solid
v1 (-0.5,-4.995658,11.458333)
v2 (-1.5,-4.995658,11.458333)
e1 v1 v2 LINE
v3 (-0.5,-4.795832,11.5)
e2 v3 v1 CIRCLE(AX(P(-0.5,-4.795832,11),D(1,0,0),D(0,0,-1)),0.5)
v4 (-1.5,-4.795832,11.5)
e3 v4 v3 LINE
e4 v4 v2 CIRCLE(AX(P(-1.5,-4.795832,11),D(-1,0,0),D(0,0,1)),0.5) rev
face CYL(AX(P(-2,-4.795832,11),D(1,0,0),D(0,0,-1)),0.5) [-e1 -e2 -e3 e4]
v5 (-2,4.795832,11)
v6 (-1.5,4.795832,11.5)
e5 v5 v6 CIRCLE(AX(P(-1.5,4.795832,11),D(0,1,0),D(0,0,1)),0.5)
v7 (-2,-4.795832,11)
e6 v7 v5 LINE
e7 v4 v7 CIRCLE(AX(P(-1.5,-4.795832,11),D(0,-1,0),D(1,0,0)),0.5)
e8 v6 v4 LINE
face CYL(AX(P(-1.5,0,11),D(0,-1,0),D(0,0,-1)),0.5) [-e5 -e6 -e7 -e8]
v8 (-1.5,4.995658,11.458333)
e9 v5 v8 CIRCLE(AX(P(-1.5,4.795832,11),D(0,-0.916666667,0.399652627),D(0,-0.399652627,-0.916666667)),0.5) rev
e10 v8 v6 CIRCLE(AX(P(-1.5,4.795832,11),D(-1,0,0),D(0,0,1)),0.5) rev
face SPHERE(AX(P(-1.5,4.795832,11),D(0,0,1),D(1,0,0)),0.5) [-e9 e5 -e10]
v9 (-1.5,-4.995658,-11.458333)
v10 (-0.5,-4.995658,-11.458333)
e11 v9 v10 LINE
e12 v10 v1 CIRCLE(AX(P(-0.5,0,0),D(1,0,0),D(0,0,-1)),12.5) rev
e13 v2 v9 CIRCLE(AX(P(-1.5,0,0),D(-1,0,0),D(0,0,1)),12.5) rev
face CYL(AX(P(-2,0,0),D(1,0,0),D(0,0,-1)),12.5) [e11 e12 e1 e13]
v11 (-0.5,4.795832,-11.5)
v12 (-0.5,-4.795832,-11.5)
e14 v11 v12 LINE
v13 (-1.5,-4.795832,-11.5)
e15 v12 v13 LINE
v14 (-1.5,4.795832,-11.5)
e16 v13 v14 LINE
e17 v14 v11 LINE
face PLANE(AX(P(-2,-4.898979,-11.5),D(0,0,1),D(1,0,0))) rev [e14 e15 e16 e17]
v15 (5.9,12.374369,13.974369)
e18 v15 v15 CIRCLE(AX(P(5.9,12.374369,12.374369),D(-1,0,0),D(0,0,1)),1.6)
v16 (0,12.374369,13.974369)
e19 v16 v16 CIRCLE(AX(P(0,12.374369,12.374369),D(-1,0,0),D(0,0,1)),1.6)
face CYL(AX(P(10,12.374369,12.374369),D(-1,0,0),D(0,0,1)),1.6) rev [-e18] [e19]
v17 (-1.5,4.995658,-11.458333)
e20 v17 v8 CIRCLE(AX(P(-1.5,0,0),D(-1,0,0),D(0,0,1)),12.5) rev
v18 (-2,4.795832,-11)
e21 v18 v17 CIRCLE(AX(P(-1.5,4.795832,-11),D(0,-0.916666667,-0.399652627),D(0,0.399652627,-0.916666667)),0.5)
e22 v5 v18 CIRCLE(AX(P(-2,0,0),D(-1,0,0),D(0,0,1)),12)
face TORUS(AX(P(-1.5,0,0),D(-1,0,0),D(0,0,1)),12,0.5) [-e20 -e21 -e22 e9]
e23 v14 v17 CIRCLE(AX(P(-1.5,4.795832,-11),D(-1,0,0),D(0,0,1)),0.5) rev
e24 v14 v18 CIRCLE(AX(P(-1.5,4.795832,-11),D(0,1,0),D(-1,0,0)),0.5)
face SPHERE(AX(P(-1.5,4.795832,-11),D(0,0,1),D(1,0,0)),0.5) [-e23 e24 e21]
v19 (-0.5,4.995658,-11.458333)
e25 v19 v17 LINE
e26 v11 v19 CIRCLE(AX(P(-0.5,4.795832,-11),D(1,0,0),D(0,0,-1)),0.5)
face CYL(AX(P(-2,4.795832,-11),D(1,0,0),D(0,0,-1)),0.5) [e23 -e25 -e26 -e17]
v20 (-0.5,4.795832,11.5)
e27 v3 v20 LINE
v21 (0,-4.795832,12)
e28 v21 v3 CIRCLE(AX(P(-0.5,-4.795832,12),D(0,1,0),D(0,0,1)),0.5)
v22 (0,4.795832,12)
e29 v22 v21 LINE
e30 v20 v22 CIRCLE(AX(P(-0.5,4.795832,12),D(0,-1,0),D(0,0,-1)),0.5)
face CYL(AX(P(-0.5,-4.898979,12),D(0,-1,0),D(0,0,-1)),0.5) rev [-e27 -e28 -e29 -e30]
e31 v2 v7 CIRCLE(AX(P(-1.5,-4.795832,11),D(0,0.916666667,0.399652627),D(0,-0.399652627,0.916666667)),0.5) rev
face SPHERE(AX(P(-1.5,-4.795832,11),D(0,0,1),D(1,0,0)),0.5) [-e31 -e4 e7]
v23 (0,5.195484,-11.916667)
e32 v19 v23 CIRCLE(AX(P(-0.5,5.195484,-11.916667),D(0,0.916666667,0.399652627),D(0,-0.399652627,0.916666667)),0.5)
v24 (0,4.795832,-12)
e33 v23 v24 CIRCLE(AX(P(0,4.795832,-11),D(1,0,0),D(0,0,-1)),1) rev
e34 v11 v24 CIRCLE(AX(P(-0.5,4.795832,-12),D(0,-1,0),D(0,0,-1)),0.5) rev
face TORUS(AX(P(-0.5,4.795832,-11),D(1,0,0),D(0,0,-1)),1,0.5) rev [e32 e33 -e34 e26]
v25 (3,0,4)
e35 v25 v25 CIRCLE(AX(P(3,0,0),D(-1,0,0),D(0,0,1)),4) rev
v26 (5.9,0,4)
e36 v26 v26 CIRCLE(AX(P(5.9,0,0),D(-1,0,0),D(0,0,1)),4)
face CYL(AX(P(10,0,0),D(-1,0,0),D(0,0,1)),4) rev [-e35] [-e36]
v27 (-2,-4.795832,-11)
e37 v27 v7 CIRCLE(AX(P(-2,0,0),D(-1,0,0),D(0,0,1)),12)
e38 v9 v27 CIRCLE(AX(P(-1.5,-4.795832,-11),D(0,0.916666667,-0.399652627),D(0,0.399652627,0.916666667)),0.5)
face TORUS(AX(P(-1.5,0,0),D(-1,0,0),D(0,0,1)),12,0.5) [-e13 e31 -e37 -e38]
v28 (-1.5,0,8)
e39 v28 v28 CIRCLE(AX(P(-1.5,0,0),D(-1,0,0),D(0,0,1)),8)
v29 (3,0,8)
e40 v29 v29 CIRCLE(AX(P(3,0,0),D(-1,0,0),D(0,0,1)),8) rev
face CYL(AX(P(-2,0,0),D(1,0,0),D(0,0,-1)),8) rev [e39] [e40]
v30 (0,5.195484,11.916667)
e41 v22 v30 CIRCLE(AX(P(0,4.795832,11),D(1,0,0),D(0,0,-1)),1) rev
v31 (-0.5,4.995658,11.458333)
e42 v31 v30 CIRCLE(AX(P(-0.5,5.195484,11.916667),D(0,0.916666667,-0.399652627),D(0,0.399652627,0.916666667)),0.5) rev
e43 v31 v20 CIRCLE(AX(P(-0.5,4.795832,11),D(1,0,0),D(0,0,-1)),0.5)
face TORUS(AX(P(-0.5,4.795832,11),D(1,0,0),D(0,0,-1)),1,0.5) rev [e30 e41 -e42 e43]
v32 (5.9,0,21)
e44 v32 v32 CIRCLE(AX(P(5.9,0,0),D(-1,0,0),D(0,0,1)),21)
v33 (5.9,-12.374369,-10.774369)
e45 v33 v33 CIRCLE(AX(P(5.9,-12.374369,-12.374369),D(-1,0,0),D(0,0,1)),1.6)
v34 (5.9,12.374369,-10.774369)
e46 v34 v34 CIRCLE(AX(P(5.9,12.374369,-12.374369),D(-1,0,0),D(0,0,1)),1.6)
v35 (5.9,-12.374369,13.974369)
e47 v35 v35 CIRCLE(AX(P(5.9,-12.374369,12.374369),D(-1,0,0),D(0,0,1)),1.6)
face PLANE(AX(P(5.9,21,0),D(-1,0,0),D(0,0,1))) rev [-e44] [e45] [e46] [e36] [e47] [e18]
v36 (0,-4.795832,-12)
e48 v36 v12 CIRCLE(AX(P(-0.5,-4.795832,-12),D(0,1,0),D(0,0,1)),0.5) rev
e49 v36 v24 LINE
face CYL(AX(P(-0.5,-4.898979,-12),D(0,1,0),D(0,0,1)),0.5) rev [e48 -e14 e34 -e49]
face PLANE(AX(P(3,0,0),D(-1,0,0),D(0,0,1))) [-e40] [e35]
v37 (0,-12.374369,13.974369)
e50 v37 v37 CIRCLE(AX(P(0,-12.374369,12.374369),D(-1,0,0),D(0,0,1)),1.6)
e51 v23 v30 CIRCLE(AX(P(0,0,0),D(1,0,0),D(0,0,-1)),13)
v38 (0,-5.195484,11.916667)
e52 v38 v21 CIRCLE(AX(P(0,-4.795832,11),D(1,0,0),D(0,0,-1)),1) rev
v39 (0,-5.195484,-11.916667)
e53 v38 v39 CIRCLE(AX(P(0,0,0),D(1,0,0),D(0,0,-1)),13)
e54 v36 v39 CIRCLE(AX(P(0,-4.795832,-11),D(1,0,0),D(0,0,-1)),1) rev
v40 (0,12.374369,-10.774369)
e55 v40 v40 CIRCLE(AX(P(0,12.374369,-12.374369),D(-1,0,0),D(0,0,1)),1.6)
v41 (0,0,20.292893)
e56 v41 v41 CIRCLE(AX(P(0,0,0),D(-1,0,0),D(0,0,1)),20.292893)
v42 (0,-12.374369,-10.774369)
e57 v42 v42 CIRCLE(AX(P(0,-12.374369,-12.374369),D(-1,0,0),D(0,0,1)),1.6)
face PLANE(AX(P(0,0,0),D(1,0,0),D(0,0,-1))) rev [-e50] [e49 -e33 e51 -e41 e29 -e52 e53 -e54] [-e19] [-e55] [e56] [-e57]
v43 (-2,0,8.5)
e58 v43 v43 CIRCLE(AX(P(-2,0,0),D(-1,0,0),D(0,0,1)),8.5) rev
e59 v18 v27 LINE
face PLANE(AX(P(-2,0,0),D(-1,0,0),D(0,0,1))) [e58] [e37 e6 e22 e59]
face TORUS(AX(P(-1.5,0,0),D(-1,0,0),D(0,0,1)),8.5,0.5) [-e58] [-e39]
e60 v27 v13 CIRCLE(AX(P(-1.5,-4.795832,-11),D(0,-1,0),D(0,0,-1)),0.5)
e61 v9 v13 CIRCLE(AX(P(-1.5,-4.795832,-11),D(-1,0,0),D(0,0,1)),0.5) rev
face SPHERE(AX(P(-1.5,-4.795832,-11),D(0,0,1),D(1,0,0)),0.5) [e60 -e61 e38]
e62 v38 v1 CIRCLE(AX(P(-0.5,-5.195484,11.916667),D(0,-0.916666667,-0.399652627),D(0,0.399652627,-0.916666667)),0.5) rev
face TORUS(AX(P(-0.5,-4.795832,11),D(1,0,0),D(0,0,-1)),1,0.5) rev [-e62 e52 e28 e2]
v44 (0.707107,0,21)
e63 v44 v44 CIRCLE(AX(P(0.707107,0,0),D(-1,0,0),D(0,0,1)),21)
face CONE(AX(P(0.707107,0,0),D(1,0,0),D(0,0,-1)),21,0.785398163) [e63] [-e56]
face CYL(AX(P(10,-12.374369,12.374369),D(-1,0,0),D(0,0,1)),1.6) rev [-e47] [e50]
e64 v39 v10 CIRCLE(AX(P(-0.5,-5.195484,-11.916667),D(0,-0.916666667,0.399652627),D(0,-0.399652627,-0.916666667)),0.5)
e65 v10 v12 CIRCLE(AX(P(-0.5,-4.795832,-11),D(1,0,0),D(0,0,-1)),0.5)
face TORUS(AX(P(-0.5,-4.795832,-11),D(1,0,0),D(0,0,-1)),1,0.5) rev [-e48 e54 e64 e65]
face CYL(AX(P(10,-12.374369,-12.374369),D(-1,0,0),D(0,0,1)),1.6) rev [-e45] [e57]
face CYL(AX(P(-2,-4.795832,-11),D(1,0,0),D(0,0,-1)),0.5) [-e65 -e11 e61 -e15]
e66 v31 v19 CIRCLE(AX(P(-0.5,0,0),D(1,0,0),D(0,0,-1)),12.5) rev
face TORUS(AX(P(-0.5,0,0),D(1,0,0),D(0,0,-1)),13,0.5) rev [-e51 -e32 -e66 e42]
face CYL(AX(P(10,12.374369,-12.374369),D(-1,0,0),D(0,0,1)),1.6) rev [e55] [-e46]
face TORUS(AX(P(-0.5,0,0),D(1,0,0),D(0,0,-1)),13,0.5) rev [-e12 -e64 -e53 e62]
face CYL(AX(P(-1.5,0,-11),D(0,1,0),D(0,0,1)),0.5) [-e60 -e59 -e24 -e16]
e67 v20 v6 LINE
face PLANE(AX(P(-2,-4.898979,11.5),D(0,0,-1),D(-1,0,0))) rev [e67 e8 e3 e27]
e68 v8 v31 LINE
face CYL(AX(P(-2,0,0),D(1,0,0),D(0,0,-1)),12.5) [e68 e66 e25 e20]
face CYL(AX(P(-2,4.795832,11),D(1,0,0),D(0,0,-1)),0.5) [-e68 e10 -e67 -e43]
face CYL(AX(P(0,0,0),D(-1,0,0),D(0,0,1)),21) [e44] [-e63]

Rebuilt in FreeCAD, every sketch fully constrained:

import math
import FreeCAD as App
import Part
import Sketcher

V = App.Vector
Q = App.Units.Quantity


def edges_at(feature, points):
    """Names of the edges that pass closest to the given points."""
    edges = feature.Shape.Edges
    near = lambda p: min(range(len(edges)), key=lambda i: edges[i].distToShape(Part.Vertex(*p))[0])
    return sorted({f"Edge{near(p) + 1}" for p in points})


def add_polygon(sketch, points):
    """Adds a closed chain of lines whose ends are joined by coincident constraints."""
    first, n = sketch.GeometryCount, len(points)
    for a, b in zip(points, points[1:] + points[:1]):
        sketch.addGeometry(Part.LineSegment(App.Vector(*a, 0), App.Vector(*b, 0)), False)
    for i in range(n):
        sketch.addConstraint(Sketcher.Constraint("Coincident", first + i, 2, first + (i + 1) % n, 1))

doc = App.newDocument("Part")
body = doc.addObject("PartDesign::Body", "Body")

# Sketch on XY plane
sketch1 = body.newObject("Sketcher::SketchObject", "Sketch")
sketch1.AttachmentSupport = (doc.getObject("XY_Plane"), [""])
sketch1.MapMode = "FlatFace"
add_polygon(sketch1, [(0, 20.292893), (0, 0), (5.9, 0), (5.9, 21), (0.707107, 21)])  # lines 0-4
sketch1.addConstraint([
    Sketcher.Constraint("Vertical", 0),
    Sketcher.Constraint("Horizontal", 1),
    Sketcher.Constraint("Vertical", 2),
    Sketcher.Constraint("Horizontal", 3),
    Sketcher.Constraint("Coincident", 0, 2, -1, 1),
    Sketcher.Constraint("DistanceY", 2, 1, 2, 2, Q("21 mm")),
    Sketcher.Constraint("Angle", 4, Q("-135 deg")),
    Sketcher.Constraint("Distance", 4, Q("1 mm")),
    Sketcher.Constraint("DistanceX", 1, 1, 1, 2, Q("5.9 mm")),
])
revolution = body.newObject("PartDesign::Revolution", "Revolution")
revolution.Profile = sketch1
revolution.ReferenceAxis = (sketch1, ["H_Axis"])
revolution.Angle = 360

# Sketch on YZ plane
sketch2 = body.newObject("Sketcher::SketchObject", "Sketch001")
sketch2.AttachmentSupport = (doc.getObject("YZ_Plane"), [""])
sketch2.MapMode = "FlatFace"
sketch2.addGeometry([
    Part.LineSegment(V(4.898979, -11.5, 0), V(-4.898979, -11.5, 0)),  # 0
    Part.ArcOfCircle(Part.Circle(V(0, 0, 0), V(0, 0, 1), 12.5), math.radians(113.073918), math.radians(246.926082)),  # 1
    Part.LineSegment(V(-4.898979, 11.5, 0), V(4.898979, 11.5, 0)),  # 2
    Part.ArcOfCircle(Part.Circle(V(0, 0, 0), V(0, 0, 1), 12.5), math.radians(-66.926082), math.radians(66.926082)),  # 3
    Part.Circle(V(0, 0, 0), V(0, 0, 1), 8),  # 4
], False)
sketch2.addConstraint([
    Sketcher.Constraint("Coincident", 0, 2, 1, 2),
    Sketcher.Constraint("Coincident", 1, 1, 2, 1),
    Sketcher.Constraint("Coincident", 2, 2, 3, 2),
    Sketcher.Constraint("Coincident", 3, 1, 0, 1),
    Sketcher.Constraint("Horizontal", 0),
    Sketcher.Constraint("Horizontal", 2),
    Sketcher.Constraint("Coincident", 1, 3, -1, 1),
    Sketcher.Constraint("Coincident", 3, 3, -1, 1),
    Sketcher.Constraint("Coincident", 4, 3, -1, 1),
    Sketcher.Constraint("Equal", 1, 3),
    Sketcher.Constraint("Vertical", 0, 2, 1, 1),
    Sketcher.Constraint("Diameter", 4, Q("16 mm")),
    Sketcher.Constraint("Radius", 1, Q("12.5 mm")),
    Sketcher.Constraint("DistanceY", 0, 2, 1, 1, Q("23 mm")),
])
pad1 = body.newObject("PartDesign::Pad", "Pad")
pad1.Profile = sketch2
pad1.Length = 2
pad1.Reversed = True
doc.recompute()

fillet = body.newObject("PartDesign::Fillet", "Fillet")
fillet.Base = (pad1, edges_at(pad1, [
    (-2, 12.5, 0),
    (-2, 0, -11.5),
    (-2, -12.5, 0),
    (-2, 0, 11.5),
    (0, 12.5, 0),
    (-1, 4.899, 11.5),
    (0, 0, -11.5),
    (-1, 4.899, -11.5),
    (0, -12.5, 0),
    (-1, -4.899, -11.5),
    (0, 0, 11.5),
    (-1, -4.899, 11.5),
    (-2, 0, -8),
]))
fillet.Radius = 0.5

# Sketch on YZ plane
sketch3 = body.newObject("Sketcher::SketchObject", "Sketch002")
sketch3.AttachmentSupport = (doc.getObject("YZ_Plane"), [""])
sketch3.MapMode = "FlatFace"
sketch3.addGeometry([
    Part.Circle(V(12.374369, 12.374369, 0), V(0, 0, 1), 1.6),
    Part.Circle(V(12.374369, -12.374369, 0), V(0, 0, 1), 1.6),
    Part.Circle(V(-12.374369, -12.374369, 0), V(0, 0, 1), 1.6),
    Part.Circle(V(-12.374369, 12.374369, 0), V(0, 0, 1), 1.6),
], False)
sketch3.addConstraint([
    Sketcher.Constraint("Equal", 0, 1),
    Sketcher.Constraint("Equal", 1, 2),
    Sketcher.Constraint("Equal", 2, 3),
    Sketcher.Constraint("Symmetric", 0, 3, 2, 3, -1, 1),
    Sketcher.Constraint("Symmetric", 1, 3, 3, 3, -1, 1),
    Sketcher.Constraint("Symmetric", 1, 3, 2, 3, -2),
    Sketcher.Constraint("Diameter", 0, Q("3.2 mm")),
    Sketcher.Constraint("DistanceX", -1, 1, 0, 3, Q("12.374369 mm")),
    Sketcher.Constraint("DistanceY", -1, 1, 0, 3, Q("12.374369 mm")),
])
pocket1 = body.newObject("PartDesign::Pocket", "Pocket")
pocket1.Profile = sketch3
pocket1.Length = 10
pocket1.Reversed = True

# Sketch on YZ plane
sketch4 = body.newObject("Sketcher::SketchObject", "Sketch003")
sketch4.AttachmentSupport = (doc.getObject("YZ_Plane"), [""])
sketch4.MapMode = "FlatFace"
sketch4.addGeometry(Part.Circle(V(0, 0, 0), V(0, 0, 1), 4), False)
sketch4.addConstraint([
    Sketcher.Constraint("Coincident", 0, 3, -1, 1),
    Sketcher.Constraint("Diameter", 0, Q("8 mm")),
])
pocket2 = body.newObject("PartDesign::Pocket", "Pocket001")
pocket2.Profile = sketch4
pocket2.Length = 10
pocket2.Reversed = True

# Sketch on YZ plane
sketch5 = body.newObject("Sketcher::SketchObject", "Sketch004")
sketch5.AttachmentSupport = (doc.getObject("YZ_Plane"), [""])
sketch5.MapMode = "FlatFace"
sketch5.addGeometry(Part.Circle(V(0, 0, 0), V(0, 0, 1), 8), False)
sketch5.addConstraint([
    Sketcher.Constraint("Coincident", 0, 3, -1, 1),
    Sketcher.Constraint("Diameter", 0, Q("16 mm")),
])
pocket3 = body.newObject("PartDesign::Pocket", "Pocket002")
pocket3.Profile = sketch5
pocket3.Length = 3
pocket3.Reversed = True

doc.recompute()
